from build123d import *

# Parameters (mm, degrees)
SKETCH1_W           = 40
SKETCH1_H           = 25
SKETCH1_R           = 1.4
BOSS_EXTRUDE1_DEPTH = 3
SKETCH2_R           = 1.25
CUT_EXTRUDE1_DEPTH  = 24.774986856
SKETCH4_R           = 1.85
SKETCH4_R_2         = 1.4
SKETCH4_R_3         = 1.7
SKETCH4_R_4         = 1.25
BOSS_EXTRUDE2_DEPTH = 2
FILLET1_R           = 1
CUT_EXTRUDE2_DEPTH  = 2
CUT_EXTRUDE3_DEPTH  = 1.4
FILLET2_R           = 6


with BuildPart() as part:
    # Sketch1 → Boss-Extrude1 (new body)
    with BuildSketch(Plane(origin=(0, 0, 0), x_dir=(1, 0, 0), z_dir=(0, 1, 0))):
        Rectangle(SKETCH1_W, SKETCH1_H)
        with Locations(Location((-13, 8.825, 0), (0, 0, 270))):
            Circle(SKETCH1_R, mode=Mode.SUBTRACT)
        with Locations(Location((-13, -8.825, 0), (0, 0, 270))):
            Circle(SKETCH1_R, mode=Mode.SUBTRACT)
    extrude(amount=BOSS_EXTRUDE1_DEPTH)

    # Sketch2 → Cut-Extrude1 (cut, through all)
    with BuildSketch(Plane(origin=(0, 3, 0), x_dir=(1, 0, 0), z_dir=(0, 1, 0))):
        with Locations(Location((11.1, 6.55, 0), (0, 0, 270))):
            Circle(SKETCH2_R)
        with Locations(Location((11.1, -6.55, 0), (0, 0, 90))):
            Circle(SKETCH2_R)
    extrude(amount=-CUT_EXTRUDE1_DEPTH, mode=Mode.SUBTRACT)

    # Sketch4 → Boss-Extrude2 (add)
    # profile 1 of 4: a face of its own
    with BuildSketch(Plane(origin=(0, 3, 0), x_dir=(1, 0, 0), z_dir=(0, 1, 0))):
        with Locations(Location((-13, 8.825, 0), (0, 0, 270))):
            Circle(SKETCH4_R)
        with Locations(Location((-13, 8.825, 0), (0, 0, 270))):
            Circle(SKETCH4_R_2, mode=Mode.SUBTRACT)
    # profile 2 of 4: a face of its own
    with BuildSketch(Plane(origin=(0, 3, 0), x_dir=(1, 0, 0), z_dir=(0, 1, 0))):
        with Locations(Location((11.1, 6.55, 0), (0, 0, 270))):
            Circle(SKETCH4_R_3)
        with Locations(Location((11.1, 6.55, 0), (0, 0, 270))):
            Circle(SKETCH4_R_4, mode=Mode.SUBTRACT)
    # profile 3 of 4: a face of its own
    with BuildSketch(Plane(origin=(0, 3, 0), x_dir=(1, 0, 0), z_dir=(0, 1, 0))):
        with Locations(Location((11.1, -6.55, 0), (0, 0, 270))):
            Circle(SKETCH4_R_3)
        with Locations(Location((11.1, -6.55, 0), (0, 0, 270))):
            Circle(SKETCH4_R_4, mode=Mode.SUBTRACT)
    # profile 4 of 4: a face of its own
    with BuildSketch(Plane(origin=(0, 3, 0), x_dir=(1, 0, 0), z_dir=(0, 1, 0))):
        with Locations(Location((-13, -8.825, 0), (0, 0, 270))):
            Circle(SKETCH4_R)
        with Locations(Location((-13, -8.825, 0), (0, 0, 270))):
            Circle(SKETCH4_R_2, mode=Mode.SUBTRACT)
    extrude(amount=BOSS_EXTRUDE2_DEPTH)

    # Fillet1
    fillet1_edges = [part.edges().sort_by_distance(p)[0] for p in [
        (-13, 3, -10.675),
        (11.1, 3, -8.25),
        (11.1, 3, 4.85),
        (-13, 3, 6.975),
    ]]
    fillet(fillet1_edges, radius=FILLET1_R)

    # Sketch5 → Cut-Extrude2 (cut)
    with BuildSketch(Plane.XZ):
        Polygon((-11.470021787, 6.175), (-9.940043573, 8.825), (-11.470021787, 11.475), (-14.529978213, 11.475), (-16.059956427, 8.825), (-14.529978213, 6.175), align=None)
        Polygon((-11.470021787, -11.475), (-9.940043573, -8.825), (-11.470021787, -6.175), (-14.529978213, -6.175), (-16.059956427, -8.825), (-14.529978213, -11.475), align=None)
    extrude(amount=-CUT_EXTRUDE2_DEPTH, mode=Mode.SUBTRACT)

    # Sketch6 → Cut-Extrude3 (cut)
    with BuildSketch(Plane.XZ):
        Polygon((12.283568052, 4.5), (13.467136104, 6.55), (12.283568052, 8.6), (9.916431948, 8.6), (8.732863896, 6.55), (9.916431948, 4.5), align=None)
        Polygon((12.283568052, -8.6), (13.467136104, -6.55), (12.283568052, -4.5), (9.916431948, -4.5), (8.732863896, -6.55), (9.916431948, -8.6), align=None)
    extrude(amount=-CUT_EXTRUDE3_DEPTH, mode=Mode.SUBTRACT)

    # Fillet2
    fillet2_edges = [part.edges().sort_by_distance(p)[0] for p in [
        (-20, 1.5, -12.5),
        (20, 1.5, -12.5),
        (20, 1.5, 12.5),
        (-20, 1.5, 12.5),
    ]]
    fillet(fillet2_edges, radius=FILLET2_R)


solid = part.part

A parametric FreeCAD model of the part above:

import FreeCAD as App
import Part
import Sketcher
from FreeCAD import Vector
Q = App.Units.Quantity


def edges_at(feature, points):
    """Names of the edges that pass closest to the given points."""
    edges = feature.Shape.Edges
    near = lambda p: min(range(len(edges)), key=lambda i: edges[i].distToShape(Part.Vertex(*p))[0])
    return sorted({f"Edge{near(p) + 1}" for p in points})


def add_polygon(sketch, points):
    """Adds a closed chain of lines whose ends are joined by coincident constraints."""
    first, n = sketch.GeometryCount, len(points)
    for a, b in zip(points, points[1:] + points[:1]):
        sketch.addGeometry(Part.LineSegment(App.Vector(*a, 0), App.Vector(*b, 0)), False)
    for i in range(n):
        sketch.addConstraint(Sketcher.Constraint("Coincident", first + i, 2, first + (i + 1) % n, 1))

doc = App.newDocument("Part")
body = doc.addObject("PartDesign::Body", "Body")

# Sketch on XZ plane
sketch1 = body.newObject("Sketcher::SketchObject", "Sketch")
sketch1.AttachmentSupport = (doc.getObject("XZ_Plane"), [""])
sketch1.MapMode = "FlatFace"
add_polygon(sketch1, [(-20, -12.5), (-20, 12.5), (20, 12.5), (20, -12.5)])  # lines 0-3
sketch1.addGeometry(Part.Circle(Vector(-13, 8.825, 0), Vector(0, 0, 1), 1.4), False)  # 4
sketch1.addGeometry(Part.Circle(Vector(-13, -8.825, 0), Vector(0, 0, 1), 1.4), False)  # 5
sketch1.addConstraint([
    Sketcher.Constraint("Vertical", 0),
    Sketcher.Constraint("Horizontal", 1),
    Sketcher.Constraint("Vertical", 2),
    Sketcher.Constraint("Horizontal", 3),
    Sketcher.Constraint("Equal", 4, 5),
    Sketcher.Constraint("Symmetric", 0, 2, 2, 2, -1, 1),
    Sketcher.Constraint("Symmetric", 4, 3, 5, 3, -1),
    Sketcher.Constraint("Diameter", 4, 2.8),
    Sketcher.Constraint("DistanceX", 1, 1, 1, 2, 40.0),
    Sketcher.Constraint("DistanceY", 0, 1, 0, 2, 25.0),
    Sketcher.Constraint("DistanceX", 4, 3, -1, 1, 13.0),
    Sketcher.Constraint("DistanceY", 5, 3, 4, 3, 17.65),
])
pad1 = body.newObject("PartDesign::Pad", "Pad")
pad1.Profile = sketch1
pad1.Length = 3
pad1.Reversed = True

# Sketch on XZ plane
sketch2 = body.newObject("Sketcher::SketchObject", "Sketch001")
sketch2.AttachmentSupport = (doc.getObject("XZ_Plane"), [""])
sketch2.MapMode = "FlatFace"
sketch2.AttachmentOffset = App.Placement(Vector(0, 0, -3), App.Rotation())
sketch2.addGeometry([
    Part.Circle(Vector(11.1, -6.55, 0), Vector(0, 0, 1), 1.25),
    Part.Circle(Vector(11.1, 6.55, 0), Vector(0, 0, 1), 1.25),
], False)
sketch2.addConstraint([
    Sketcher.Constraint("Equal", 0, 1),
    Sketcher.Constraint("Symmetric", 0, 3, 1, 3, -1),
    Sketcher.Constraint("Diameter", 0, 2.5),
    Sketcher.Constraint("DistanceX", -1, 1, 0, 3, 11.1),
    Sketcher.Constraint("DistanceY", 0, 3, 1, 3, 13.1),
])
pocket1 = body.newObject("PartDesign::Pocket", "Pocket")
pocket1.Profile = sketch2
pocket1.Type = "ThroughAll"
pocket1.Reversed = True

# Sketch on XZ plane
sketch3 = body.newObject("Sketcher::SketchObject", "Sketch002")
sketch3.AttachmentSupport = (doc.getObject("XZ_Plane"), [""])
sketch3.MapMode = "FlatFace"
sketch3.AttachmentOffset = App.Placement(Vector(0, 0, -3), App.Rotation())
sketch3.addGeometry([
    Part.Circle(Vector(-13, -8.825, 0), Vector(0, 0, 1), 1.85),  # 0
    Part.Circle(Vector(-13, -8.825, 0), Vector(0, 0, 1), 1.4),  # 1
    Part.Circle(Vector(11.1, -6.55, 0), Vector(0, 0, 1), 1.7),  # 2
    Part.Circle(Vector(11.1, -6.55, 0), Vector(0, 0, 1), 1.25),  # 3
    Part.Circle(Vector(11.1, 6.55, 0), Vector(0, 0, 1), 1.7),  # 4
    Part.Circle(Vector(11.1, 6.55, 0), Vector(0, 0, 1), 1.25),  # 5
    Part.Circle(Vector(-13, 8.825, 0), Vector(0, 0, 1), 1.85),  # 6
    Part.Circle(Vector(-13, 8.825, 0), Vector(0, 0, 1), 1.4),  # 7
], False)
sketch3.addConstraint([
    Sketcher.Constraint("Coincident", 1, 3, 0, 3),
    Sketcher.Constraint("Coincident", 3, 3, 2, 3),
    Sketcher.Constraint("Coincident", 5, 3, 4, 3),
    Sketcher.Constraint("Coincident", 7, 3, 6, 3),
    Sketcher.Constraint("Equal", 2, 4),
    Sketcher.Constraint("Equal", 3, 5),
    Sketcher.Constraint("Equal", 0, 6),
    Sketcher.Constraint("Equal", 1, 7),
    Sketcher.Constraint("Symmetric", 2, 3, 4, 3, -1),
    Sketcher.Constraint("Symmetric", 0, 3, 6, 3, -1),
    Sketcher.Constraint("Diameter", 0, 3.7),
    Sketcher.Constraint("Diameter", 1, 2.8),
    Sketcher.Constraint("Diameter", 2, 3.4),
    Sketcher.Constraint("Diameter", 3, 2.5),
    Sketcher.Constraint("DistanceX", 0, 3, -1, 1, 13.0),
    Sketcher.Constraint("DistanceX", -1, 1, 2, 3, 11.1),
    Sketcher.Constraint("DistanceY", 2, 3, 4, 3, 13.1),
    Sketcher.Constraint("DistanceY", 0, 3, 6, 3, 17.65),
])
pad2 = body.newObject("PartDesign::Pad", "Pad001")
pad2.Profile = sketch3
pad2.Length = 2
pad2.Reversed = True
doc.recompute()

fillet = body.newObject("PartDesign::Fillet", "Fillet")
fillet.Base = (pad2, edges_at(pad2, [
    (-13, 3, -10.675),
    (11.1, 3, -8.25),
    (11.1, 3, 4.85),
    (-13, 3, 6.975),
]))
fillet.Radius = 1

# Sketch on XZ plane
sketch4 = body.newObject("Sketcher::SketchObject", "Sketch003")
sketch4.AttachmentSupport = (doc.getObject("XZ_Plane"), [""])
sketch4.MapMode = "FlatFace"
add_polygon(sketch4, [(-11.470022, 6.175), (-9.940044, 8.825), (-11.470022, 11.475), (-14.529978, 11.475), (-16.059956, 8.825), (-14.529978, 6.175)])  # lines 0-5
add_polygon(sketch4, [(-11.470022, -11.475), (-9.940044, -8.825), (-11.470022, -6.175), (-14.529978, -6.175), (-16.059956, -8.825), (-14.529978, -11.475)])  # lines 6-11
sketch4.addConstraint([
    Sketcher.Constraint("Horizontal", 2),
    Sketcher.Constraint("Horizontal", 5),
    Sketcher.Constraint("Horizontal", 8),
    Sketcher.Constraint("Horizontal", 11),
    Sketcher.Constraint("Symmetric", 0, 2, 6, 2, -1),
    Sketcher.Constraint("Symmetric", 5, 2, 7, 2, -1),
    Sketcher.Constraint("Symmetric", 3, 2, 9, 2, -1),
    Sketcher.Constraint("Symmetric", 2, 2, 10, 2, -1),
    Sketcher.Constraint("Parallel", 0, 3),
    Sketcher.Constraint("Parallel", 1, 4),
    Sketcher.Constraint("Parallel", 3, 6),
    Sketcher.Constraint("Parallel", 4, 7),
    Sketcher.Constraint("Parallel", 6, 9),
    Sketcher.Constraint("Horizontal", 0, 2, 3, 2),
    Sketcher.Constraint("Vertical", 2, 2, 4, 2),
    Sketcher.Constraint("Angle", 0, Q("60 deg")),
    Sketcher.Constraint("DistanceY", 6, 2, 5, 2, 15.0),
    Sketcher.Constraint("DistanceY", 4, 2, 2, 2, 5.3),
    Sketcher.Constraint("DistanceX", 2, 2, 2, 1, 3.059956),
    Sketcher.Constraint("DistanceX", 1, 2, -1, 1, 11.470022),
])
pocket2 = body.newObject("PartDesign::Pocket", "Pocket001")
pocket2.Profile = sketch4
pocket2.Length = 2

# Sketch on XZ plane
sketch5 = body.newObject("Sketcher::SketchObject", "Sketch004")
sketch5.AttachmentSupport = (doc.getObject("XZ_Plane"), [""])
sketch5.MapMode = "FlatFace"
add_polygon(sketch5, [(12.283568, 4.5), (13.467136, 6.55), (12.283568, 8.6), (9.916432, 8.6), (8.732864, 6.55), (9.916432, 4.5)])  # lines 0-5
add_polygon(sketch5, [(12.283568, -8.6), (13.467136, -6.55), (12.283568, -4.5), (9.916432, -4.5), (8.732864, -6.55), (9.916432, -8.6)])  # lines 6-11
sketch5.addConstraint([
    Sketcher.Constraint("Horizontal", 2),
    Sketcher.Constraint("Horizontal", 5),
    Sketcher.Constraint("Horizontal", 8),
    Sketcher.Constraint("Horizontal", 11),
    Sketcher.Constraint("Symmetric", 0, 2, 6, 2, -1),
    Sketcher.Constraint("Symmetric", 5, 2, 7, 2, -1),
    Sketcher.Constraint("Symmetric", 3, 2, 9, 2, -1),
    Sketcher.Constraint("Symmetric", 2, 2, 10, 2, -1),
    Sketcher.Constraint("Parallel", 0, 3),
    Sketcher.Constraint("Parallel", 1, 4),
    Sketcher.Constraint("Parallel", 3, 6),
    Sketcher.Constraint("Parallel", 4, 7),
    Sketcher.Constraint("Parallel", 6, 9),
    Sketcher.Constraint("Horizontal", 0, 2, 3, 2),
    Sketcher.Constraint("Vertical", 2, 2, 4, 2),
    Sketcher.Constraint("Angle", 0, Q("60 deg")),
    Sketcher.Constraint("DistanceY", 7, 2, 5, 2, 9.0),
    Sketcher.Constraint("DistanceY", -1, 1, 1, 2, 8.6),
    Sketcher.Constraint("DistanceX", 2, 2, 2, 1, 2.367136),
    Sketcher.Constraint("DistanceX", -1, 1, 1, 2, 12.283568),
])
pocket3 = body.newObject("PartDesign::Pocket", "Pocket002")
pocket3.Profile = sketch5
pocket3.Length = 1.4
doc.recompute()

fillet2 = body.newObject("PartDesign::Fillet", "Fillet001")
fillet2.Base = (pocket3, edges_at(pocket3, [
    (-20, 1.5, -12.5),
    (20, 1.5, -12.5),
    (20, 1.5, 12.5),
    (-20, 1.5, 12.5),
]))
fillet2.Radius = 6

doc.recompute()
